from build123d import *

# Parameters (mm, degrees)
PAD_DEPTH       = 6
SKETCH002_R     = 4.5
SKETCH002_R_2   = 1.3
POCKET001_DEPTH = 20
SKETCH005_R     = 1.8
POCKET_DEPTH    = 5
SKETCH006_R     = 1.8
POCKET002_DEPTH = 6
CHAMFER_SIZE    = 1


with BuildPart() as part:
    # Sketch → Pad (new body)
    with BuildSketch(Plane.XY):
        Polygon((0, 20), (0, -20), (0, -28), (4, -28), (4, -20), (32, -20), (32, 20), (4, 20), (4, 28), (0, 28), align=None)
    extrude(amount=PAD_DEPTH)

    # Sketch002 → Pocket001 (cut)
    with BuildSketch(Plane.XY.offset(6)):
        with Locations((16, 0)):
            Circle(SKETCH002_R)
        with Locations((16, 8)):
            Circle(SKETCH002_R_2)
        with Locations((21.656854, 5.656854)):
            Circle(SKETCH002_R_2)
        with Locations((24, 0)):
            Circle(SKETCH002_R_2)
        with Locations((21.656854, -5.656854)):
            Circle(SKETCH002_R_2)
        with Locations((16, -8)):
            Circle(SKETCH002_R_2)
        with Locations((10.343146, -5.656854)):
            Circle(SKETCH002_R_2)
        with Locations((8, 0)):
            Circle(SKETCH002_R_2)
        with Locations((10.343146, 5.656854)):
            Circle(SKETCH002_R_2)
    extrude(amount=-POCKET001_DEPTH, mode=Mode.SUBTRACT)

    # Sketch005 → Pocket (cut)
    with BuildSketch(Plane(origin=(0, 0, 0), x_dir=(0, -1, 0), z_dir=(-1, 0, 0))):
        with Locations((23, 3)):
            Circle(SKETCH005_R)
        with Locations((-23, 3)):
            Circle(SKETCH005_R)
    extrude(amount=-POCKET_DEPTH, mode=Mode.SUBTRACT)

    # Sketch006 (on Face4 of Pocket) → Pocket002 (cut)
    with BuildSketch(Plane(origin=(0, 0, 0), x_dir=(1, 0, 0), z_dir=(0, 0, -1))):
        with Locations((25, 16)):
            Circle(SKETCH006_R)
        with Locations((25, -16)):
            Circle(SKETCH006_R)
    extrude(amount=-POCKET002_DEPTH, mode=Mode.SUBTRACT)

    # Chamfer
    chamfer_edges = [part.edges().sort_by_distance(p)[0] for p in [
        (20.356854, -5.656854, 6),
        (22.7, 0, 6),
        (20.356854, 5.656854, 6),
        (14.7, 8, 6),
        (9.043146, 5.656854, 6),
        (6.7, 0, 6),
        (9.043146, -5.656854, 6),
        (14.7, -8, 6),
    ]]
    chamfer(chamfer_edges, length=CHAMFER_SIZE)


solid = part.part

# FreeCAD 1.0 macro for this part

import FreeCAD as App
import Part
import Sketcher


def edges_at(feature, points):
    """Names of the edges that pass closest to the given points."""
    edges = feature.Shape.Edges
    near = lambda p: min(range(len(edges)), key=lambda i: edges[i].distToShape(Part.Vertex(*p))[0])
    return sorted({f"Edge{near(p) + 1}" for p in points})


def add_polygon(sketch, points):
    """Adds a closed chain of lines whose ends are joined by coincident constraints."""
    first, n = sketch.GeometryCount, len(points)
    for a, b in zip(points, points[1:] + points[:1]):
        sketch.addGeometry(Part.LineSegment(App.Vector(*a, 0), App.Vector(*b, 0)), False)
    for i in range(n):
        sketch.addConstraint(Sketcher.Constraint("Coincident", first + i, 2, first + (i + 1) % n, 1))

doc = App.newDocument("Part")
body = doc.addObject("PartDesign::Body", "Body")

sketch1 = doc.addObject("Sketcher::SketchObject", "Sketch")
body.addObject(sketch1)
sketch1.AttachmentSupport = (doc.XY_Plane, [""])
sketch1.MapMode = "FlatFace"
add_polygon(sketch1, [(0, -28), (4, -28), (4, -20), (32, -20), (32, 20), (4, 20), (4, 28), (0, 28)])
sketch1.addConstraint([
    Sketcher.Constraint("Horizontal", 0),
    Sketcher.Constraint("Vertical", 1),
    Sketcher.Constraint("Horizontal", 2),
    Sketcher.Constraint("Vertical", 3),
    Sketcher.Constraint("Horizontal", 4),
    Sketcher.Constraint("Vertical", 5),
    Sketcher.Constraint("Horizontal", 6),
    Sketcher.Constraint("Vertical", 7),
    Sketcher.Constraint("Symmetric", 6, 2, 7, 2, -1, 1),
    Sketcher.Constraint("Symmetric", 1, 2, 4, 2, -1),
    Sketcher.Constraint("DistanceX", 0, 1, 0, 2, 4.0),
    Sketcher.Constraint("DistanceX", 2, 1, 2, 2, 28.0),
    Sketcher.Constraint("DistanceY", 1, 1, 1, 2, 8.0),
    Sketcher.Constraint("DistanceY", 3, 1, 3, 2, 40.0),
])
pad1 = doc.addObject("PartDesign::Pad", "Pad")
body.addObject(pad1)
pad1.Profile = sketch1
pad1.Length = 6

sketch2 = doc.addObject("Sketcher::SketchObject", "Sketch001")
body.addObject(sketch2)
sketch2.AttachmentSupport = (doc.XY_Plane, [""])
sketch2.MapMode = "FlatFace"
sketch2.AttachmentOffset = App.Placement(App.Vector(0, 0, 6), App.Rotation())
sketch2.addGeometry([
    Part.Circle(App.Vector(16, 0, 0), App.Vector(0, 0, 1), 4.5),
    Part.Circle(App.Vector(16, 8, 0), App.Vector(0, 0, 1), 1.3),
    Part.Circle(App.Vector(21.7, 5.7, 0), App.Vector(0, 0, 1), 1.3),
    Part.Circle(App.Vector(24, 0, 0), App.Vector(0, 0, 1), 1.3),
    Part.Circle(App.Vector(21.7, -5.7, 0), App.Vector(0, 0, 1), 1.3),
    Part.Circle(App.Vector(16, -8, 0), App.Vector(0, 0, 1), 1.3),
    Part.Circle(App.Vector(10.3, -5.7, 0), App.Vector(0, 0, 1), 1.3),
    Part.Circle(App.Vector(8, 0, 0), App.Vector(0, 0, 1), 1.3),
    Part.Circle(App.Vector(10.3, 5.7, 0), App.Vector(0, 0, 1), 1.3),
], False)
sketch2.addConstraint([
    Sketcher.Constraint("Equal", 1, 2),
    Sketcher.Constraint("Equal", 2, 3),
    Sketcher.Constraint("Equal", 3, 4),
    Sketcher.Constraint("Equal", 4, 5),
    Sketcher.Constraint("Equal", 5, 6),
    Sketcher.Constraint("Equal", 6, 7),
    Sketcher.Constraint("Equal", 7, 8),
    Sketcher.Constraint("Symmetric", 2, 3, 4, 3, -1),
    Sketcher.Constraint("Symmetric", 1, 3, 5, 3, -1),
    Sketcher.Constraint("Symmetric", 6, 3, 8, 3, -1),
    Sketcher.Constraint("PointOnObject", 0, 3, -1),
    Sketcher.Constraint("PointOnObject", 3, 3, -1),
    Sketcher.Constraint("PointOnObject", 7, 3, -1),
    Sketcher.Constraint("Horizontal", 4, 3, 6, 3),
    Sketcher.Constraint("Vertical", 0, 3, 1, 3),
    Sketcher.Constraint("Diameter", 0, 9.0),
    Sketcher.Constraint("Diameter", 1, 2.6),
    Sketcher.Constraint("DistanceX", -1, 1, 0, 3, 16.0),
    Sketcher.Constraint("DistanceY", -1, 1, 1, 3, 8.0),
    Sketcher.Constraint("DistanceX", -1, 1, 3, 3, 24.0),
    Sketcher.Constraint("DistanceX", -1, 1, 7, 3, 8.0),
    Sketcher.Constraint("DistanceX", -1, 1, 2, 3, 21.656854),
    Sketcher.Constraint("DistanceY", -1, 1, 2, 3, 5.656854),
    Sketcher.Constraint("DistanceX", -1, 1, 6, 3, 10.343146),
])
pocket1 = doc.addObject("PartDesign::Pocket", "Pocket")
body.addObject(pocket1)
pocket1.Profile = sketch2
pocket1.Length = 20

sketch3 = doc.addObject("Sketcher::SketchObject", "Sketch002")
body.addObject(sketch3)
sketch3.AttachmentSupport = (doc.YZ_Plane, [""])
sketch3.MapMode = "FlatFace"
sketch3.addGeometry([
    Part.Circle(App.Vector(-23, 3, 0), App.Vector(0, 0, 1), 1.8),
    Part.Circle(App.Vector(23, 3, 0), App.Vector(0, 0, 1), 1.8),
], False)
sketch3.addConstraint([
    Sketcher.Constraint("Equal", 0, 1),
    Sketcher.Constraint("Symmetric", 0, 3, 1, 3, -2),
    Sketcher.Constraint("Diameter", 0, 3.6),
    Sketcher.Constraint("DistanceX", 0, 3, -1, 1, 23.0),
    Sketcher.Constraint("DistanceY", -1, 1, 0, 3, 3.0),
])
pocket2 = doc.addObject("PartDesign::Pocket", "Pocket001")
body.addObject(pocket2)
pocket2.Profile = sketch3
pocket2.Length = 5
pocket2.Reversed = True

sketch4 = doc.addObject("Sketcher::SketchObject", "Sketch003")
body.addObject(sketch4)
sketch4.AttachmentSupport = (doc.XY_Plane, [""])
sketch4.MapMode = "FlatFace"
sketch4.addGeometry([
    Part.Circle(App.Vector(25, -16, 0), App.Vector(0, 0, 1), 1.8),
    Part.Circle(App.Vector(25, 16, 0), App.Vector(0, 0, 1), 1.8),
], False)
sketch4.addConstraint([
    Sketcher.Constraint("Equal", 0, 1),
    Sketcher.Constraint("Symmetric", 0, 3, 1, 3, -1),
    Sketcher.Constraint("Diameter", 0, 3.6),
    Sketcher.Constraint("DistanceX", -1, 1, 0, 3, 25.0),
    Sketcher.Constraint("DistanceY", 0, 3, -1, 1, 16.0),
])
pocket3 = doc.addObject("PartDesign::Pocket", "Pocket002")
body.addObject(pocket3)
pocket3.Profile = sketch4
pocket3.Length = 6
pocket3.Reversed = True
doc.recompute()

chamfer = doc.addObject("PartDesign::Chamfer", "Chamfer")
body.addObject(chamfer)
chamfer.Base = (pocket3, edges_at(pocket3, [
    (20.357, -5.657, 6),
    (22.7, 0, 6),
    (20.357, 5.657, 6),
    (14.7, 8, 6),
    (9.043, 5.657, 6),
    (6.7, 0, 6),
    (9.043, -5.657, 6),
    (14.7, -8, 6),
]))
chamfer.Size = 1

doc.recompute()
